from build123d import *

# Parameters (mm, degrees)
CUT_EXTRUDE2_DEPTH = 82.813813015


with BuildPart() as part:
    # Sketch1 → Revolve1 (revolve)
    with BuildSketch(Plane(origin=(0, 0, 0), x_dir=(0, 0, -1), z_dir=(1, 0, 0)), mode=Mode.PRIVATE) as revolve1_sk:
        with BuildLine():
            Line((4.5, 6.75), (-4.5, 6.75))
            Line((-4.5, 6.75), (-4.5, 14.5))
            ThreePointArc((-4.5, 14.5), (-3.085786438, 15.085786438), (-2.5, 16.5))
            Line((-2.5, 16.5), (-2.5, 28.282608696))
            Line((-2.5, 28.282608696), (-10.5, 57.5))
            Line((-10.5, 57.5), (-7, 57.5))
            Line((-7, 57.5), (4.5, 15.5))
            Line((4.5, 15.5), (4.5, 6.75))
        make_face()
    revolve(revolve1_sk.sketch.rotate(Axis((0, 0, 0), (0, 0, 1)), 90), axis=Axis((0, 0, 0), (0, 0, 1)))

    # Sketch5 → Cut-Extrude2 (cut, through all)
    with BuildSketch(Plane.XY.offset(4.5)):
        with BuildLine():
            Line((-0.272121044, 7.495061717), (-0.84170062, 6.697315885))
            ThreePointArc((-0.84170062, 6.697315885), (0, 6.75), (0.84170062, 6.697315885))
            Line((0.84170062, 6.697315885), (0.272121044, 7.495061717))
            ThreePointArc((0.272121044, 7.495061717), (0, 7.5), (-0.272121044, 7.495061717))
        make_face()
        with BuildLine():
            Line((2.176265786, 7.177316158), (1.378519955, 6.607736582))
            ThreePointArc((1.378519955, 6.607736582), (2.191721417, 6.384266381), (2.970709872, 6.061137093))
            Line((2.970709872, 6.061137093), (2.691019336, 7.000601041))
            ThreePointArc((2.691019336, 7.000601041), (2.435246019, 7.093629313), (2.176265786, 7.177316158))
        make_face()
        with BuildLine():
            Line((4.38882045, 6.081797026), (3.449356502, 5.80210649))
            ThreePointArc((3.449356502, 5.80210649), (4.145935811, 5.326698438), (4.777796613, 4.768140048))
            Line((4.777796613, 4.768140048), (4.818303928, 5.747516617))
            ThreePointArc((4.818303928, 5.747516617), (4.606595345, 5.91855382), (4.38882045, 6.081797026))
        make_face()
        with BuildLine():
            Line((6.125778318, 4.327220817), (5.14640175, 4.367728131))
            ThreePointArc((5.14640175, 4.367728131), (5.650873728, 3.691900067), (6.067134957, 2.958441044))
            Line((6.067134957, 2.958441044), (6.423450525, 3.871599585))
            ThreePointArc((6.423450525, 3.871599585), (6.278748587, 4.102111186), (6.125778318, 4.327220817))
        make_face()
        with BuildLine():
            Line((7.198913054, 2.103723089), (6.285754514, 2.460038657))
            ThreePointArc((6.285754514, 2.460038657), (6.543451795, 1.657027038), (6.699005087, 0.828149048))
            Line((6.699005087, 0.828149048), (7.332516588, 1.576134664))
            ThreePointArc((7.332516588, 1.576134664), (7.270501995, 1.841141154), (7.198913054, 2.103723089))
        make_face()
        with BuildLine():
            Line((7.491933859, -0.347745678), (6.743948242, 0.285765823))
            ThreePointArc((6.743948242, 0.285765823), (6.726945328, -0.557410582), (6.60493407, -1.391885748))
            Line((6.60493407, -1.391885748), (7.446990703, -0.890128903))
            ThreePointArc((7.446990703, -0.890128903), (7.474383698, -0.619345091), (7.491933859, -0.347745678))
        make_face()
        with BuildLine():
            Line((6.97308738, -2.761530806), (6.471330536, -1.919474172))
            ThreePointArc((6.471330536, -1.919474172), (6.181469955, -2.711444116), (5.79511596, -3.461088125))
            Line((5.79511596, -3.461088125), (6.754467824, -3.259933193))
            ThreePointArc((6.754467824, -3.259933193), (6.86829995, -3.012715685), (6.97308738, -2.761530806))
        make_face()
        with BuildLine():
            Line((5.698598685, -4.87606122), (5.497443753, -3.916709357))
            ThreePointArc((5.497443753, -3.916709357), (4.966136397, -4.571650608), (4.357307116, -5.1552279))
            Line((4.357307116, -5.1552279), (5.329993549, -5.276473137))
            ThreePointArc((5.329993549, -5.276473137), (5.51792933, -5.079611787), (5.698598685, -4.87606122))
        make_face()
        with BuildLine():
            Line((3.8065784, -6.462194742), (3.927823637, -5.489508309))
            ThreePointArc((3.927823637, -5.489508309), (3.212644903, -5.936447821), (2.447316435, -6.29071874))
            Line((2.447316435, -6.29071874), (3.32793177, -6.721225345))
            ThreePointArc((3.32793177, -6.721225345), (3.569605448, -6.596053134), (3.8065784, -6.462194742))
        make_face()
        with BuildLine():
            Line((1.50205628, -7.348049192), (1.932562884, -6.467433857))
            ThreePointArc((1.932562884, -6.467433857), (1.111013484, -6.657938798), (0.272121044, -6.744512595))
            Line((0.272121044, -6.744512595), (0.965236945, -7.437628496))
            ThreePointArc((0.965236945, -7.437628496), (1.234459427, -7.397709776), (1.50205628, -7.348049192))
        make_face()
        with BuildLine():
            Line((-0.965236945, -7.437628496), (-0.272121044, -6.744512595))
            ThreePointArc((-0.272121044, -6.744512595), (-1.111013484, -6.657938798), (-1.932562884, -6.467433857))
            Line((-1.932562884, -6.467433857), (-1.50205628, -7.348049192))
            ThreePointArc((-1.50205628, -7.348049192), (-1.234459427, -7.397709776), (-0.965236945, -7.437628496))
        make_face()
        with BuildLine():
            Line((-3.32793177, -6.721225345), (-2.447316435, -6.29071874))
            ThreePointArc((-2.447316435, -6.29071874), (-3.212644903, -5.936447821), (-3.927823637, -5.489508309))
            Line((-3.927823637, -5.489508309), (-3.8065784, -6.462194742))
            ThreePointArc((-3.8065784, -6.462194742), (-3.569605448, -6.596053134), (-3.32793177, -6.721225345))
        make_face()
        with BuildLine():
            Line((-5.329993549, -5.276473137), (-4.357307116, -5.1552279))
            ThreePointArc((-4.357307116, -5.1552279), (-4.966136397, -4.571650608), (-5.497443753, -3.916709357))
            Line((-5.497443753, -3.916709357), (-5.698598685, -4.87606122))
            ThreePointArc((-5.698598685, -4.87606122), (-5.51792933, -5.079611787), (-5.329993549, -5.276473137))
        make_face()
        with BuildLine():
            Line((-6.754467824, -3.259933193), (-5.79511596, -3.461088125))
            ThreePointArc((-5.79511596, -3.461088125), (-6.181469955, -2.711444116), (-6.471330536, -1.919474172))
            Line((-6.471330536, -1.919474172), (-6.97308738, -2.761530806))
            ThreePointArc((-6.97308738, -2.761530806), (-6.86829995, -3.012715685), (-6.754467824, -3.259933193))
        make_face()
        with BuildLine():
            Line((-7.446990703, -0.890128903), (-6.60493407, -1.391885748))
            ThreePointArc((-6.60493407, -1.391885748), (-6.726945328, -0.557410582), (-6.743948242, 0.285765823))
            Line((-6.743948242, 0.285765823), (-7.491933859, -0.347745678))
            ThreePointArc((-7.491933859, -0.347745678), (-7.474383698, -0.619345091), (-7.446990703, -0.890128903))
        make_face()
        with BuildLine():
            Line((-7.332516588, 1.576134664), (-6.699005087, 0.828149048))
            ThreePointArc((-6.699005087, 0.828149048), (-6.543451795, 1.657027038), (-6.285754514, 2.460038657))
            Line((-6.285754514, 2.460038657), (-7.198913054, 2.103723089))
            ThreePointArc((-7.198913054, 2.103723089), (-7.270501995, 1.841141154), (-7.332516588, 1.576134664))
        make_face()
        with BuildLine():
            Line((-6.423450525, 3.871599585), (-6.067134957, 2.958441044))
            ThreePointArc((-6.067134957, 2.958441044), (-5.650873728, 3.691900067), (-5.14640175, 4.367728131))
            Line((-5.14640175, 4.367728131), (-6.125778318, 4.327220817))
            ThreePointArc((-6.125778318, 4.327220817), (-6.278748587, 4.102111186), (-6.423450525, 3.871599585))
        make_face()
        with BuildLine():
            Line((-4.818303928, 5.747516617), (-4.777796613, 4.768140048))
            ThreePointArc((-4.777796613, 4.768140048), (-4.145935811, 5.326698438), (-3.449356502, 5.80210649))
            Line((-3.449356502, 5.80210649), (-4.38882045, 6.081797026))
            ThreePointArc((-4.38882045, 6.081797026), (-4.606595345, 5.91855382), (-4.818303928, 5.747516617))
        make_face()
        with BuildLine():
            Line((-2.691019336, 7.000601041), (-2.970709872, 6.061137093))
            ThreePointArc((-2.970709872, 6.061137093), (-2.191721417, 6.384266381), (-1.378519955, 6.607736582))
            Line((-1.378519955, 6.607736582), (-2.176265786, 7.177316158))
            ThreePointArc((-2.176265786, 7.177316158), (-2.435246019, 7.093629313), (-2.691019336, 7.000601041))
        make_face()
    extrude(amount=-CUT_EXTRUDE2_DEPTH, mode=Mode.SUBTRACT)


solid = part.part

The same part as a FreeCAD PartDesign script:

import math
import FreeCAD as App
import Part
import Sketcher
Q = App.Units.Quantity

doc = App.newDocument("Part")
body = doc.addObject("PartDesign::Body", "Body")

# Sketch on YZ plane
sketch1 = body.newObject("Sketcher::SketchObject", "Sketch")
sketch1.AttachmentSupport = (doc.getObject("YZ_Plane"), [""])
sketch1.MapMode = "FlatFace"
sketch1.addGeometry([
    Part.LineSegment(App.Vector(6.75, 4.5, 0), App.Vector(6.75, -4.5, 0)),  # 0
    Part.LineSegment(App.Vector(6.75, -4.5, 0), App.Vector(15.5, -4.5, 0)),  # 1
    Part.LineSegment(App.Vector(15.5, -4.5, 0), App.Vector(57.5, 7, 0)),  # 2
    Part.LineSegment(App.Vector(57.5, 7, 0), App.Vector(57.5, 10.5, 0)),  # 3
    Part.LineSegment(App.Vector(57.5, 10.5, 0), App.Vector(28.282609, 2.5, 0)),  # 4
    Part.LineSegment(App.Vector(28.282609, 2.5, 0), App.Vector(16.5, 2.5, 0)),  # 5
    Part.ArcOfCircle(Part.Circle(App.Vector(16.5, 4.5, 0), App.Vector(0, 0, 1), 2), math.radians(-180), math.radians(-90)),  # 6
    Part.LineSegment(App.Vector(14.5, 4.5, 0), App.Vector(6.75, 4.5, 0)),  # 7
], False)
sketch1.addConstraint([
    Sketcher.Constraint("Coincident", 0, 2, 1, 1),
    Sketcher.Constraint("Coincident", 1, 2, 2, 1),
    Sketcher.Constraint("Coincident", 2, 2, 3, 1),
    Sketcher.Constraint("Coincident", 3, 2, 4, 1),
    Sketcher.Constraint("Coincident", 4, 2, 5, 1),
    Sketcher.Constraint("Tangent", 5, 2, 6, 2),
    Sketcher.Constraint("Coincident", 6, 1, 7, 1),
    Sketcher.Constraint("Coincident", 7, 2, 0, 1),
    Sketcher.Constraint("Vertical", 0),
    Sketcher.Constraint("Horizontal", 1),
    Sketcher.Constraint("Vertical", 3),
    Sketcher.Constraint("Horizontal", 5),
    Sketcher.Constraint("Horizontal", 7),
    Sketcher.Constraint("Parallel", 2, 4),
    Sketcher.Constraint("Radius", 6, Q("2 mm")),
    Sketcher.Constraint("DistanceY", 0, 2, 0, 1, Q("9 mm")),
    Sketcher.Constraint("DistanceY", 3, 1, 3, 2, Q("3.5 mm")),
    Sketcher.Constraint("DistanceY", -1, 1, 2, 2, Q("7 mm")),
    Sketcher.Constraint("DistanceY", 0, 2, 6, 3, Q("9 mm")),
    Sketcher.Constraint("DistanceX", 1, 2, 6, 3, Q("1 mm")),
    Sketcher.Constraint("DistanceX", 6, 3, 2, 2, Q("41 mm")),
    Sketcher.Constraint("DistanceY", 6, 3, 3, 2, Q("6 mm")),
    Sketcher.Constraint("DistanceX", 1, 1, 1, 2, Q("8.75 mm")),
    Sketcher.Constraint("DistanceX", -1, 1, 6, 3, Q("16.5 mm")),
])
revolution = body.newObject("PartDesign::Revolution", "Revolution")
revolution.Profile = sketch1
revolution.ReferenceAxis = (sketch1, ["V_Axis"])
revolution.Angle = 360

# Sketch on XY plane
sketch2 = body.newObject("Sketcher::SketchObject", "Sketch001")
sketch2.AttachmentSupport = (doc.getObject("XY_Plane"), [""])
sketch2.MapMode = "FlatFace"
sketch2.AttachmentOffset = App.Placement(App.Vector(0, 0, 4.5), App.Rotation())
sketch2.addGeometry([
    Part.LineSegment(App.Vector(-0.272121, 7.495062, 0), App.Vector(-0.841701, 6.697316, 0)),  # 0
    Part.ArcOfCircle(Part.Circle(App.Vector(0, 0, 0), App.Vector(0, 0, 1), 6.75), math.radians(82.836777), math.radians(97.163223)),  # 1
    Part.LineSegment(App.Vector(0.841701, 6.697316, 0), App.Vector(0.272121, 7.495062, 0)),  # 2
    Part.ArcOfCircle(Part.Circle(App.Vector(0, 0, 0), App.Vector(0, 0, 1), 7.5), math.radians(87.920692), math.radians(92.079308)),  # 3
    Part.LineSegment(App.Vector(2.176266, 7.177316, 0), App.Vector(1.37852, 6.607737, 0)),  # 4
    Part.ArcOfCircle(Part.Circle(App.Vector(0, 0, 0), App.Vector(0, 0, 1), 6.75), math.radians(63.889409), math.radians(78.215854)),  # 5
    Part.LineSegment(App.Vector(2.97071, 6.061137, 0), App.Vector(2.691019, 7.000601, 0)),  # 6
    Part.ArcOfCircle(Part.Circle(App.Vector(0, 0, 0), App.Vector(0, 0, 1), 7.5), math.radians(68.973324), math.radians(73.13194)),  # 7
    Part.LineSegment(App.Vector(4.38882, 6.081797, 0), App.Vector(3.449357, 5.802106, 0)),  # 8
    Part.ArcOfCircle(Part.Circle(App.Vector(0, 0, 0), App.Vector(0, 0, 1), 6.75), math.radians(44.94204), math.radians(59.268486)),  # 9
    Part.LineSegment(App.Vector(4.777797, 4.76814, 0), App.Vector(4.818304, 5.747517, 0)),  # 10
    Part.ArcOfCircle(Part.Circle(App.Vector(-0.000001, -0.000001, 0), App.Vector(0, 0, 1), 7.500001), math.radians(50.025955), math.radians(54.184571)),  # 11
    Part.LineSegment(App.Vector(6.125778, 4.327221, 0), App.Vector(5.146402, 4.367728, 0)),  # 12
    Part.ArcOfCircle(Part.Circle(App.Vector(0, 0, 0), App.Vector(0, 0, 1), 6.75), math.radians(25.994672), math.radians(40.321118)),  # 13
    Part.LineSegment(App.Vector(6.067135, 2.958441, 0), App.Vector(6.423451, 3.8716, 0)),  # 14
    Part.ArcOfCircle(Part.Circle(App.Vector(0, 0, 0), App.Vector(0, 0, 1), 7.5), math.radians(31.078587), math.radians(35.237203)),  # 15
    Part.LineSegment(App.Vector(7.198913, 2.103723, 0), App.Vector(6.285755, 2.460039, 0)),  # 16
    Part.ArcOfCircle(Part.Circle(App.Vector(0, 0, 0), App.Vector(0, 0, 1), 6.75), math.radians(7.047303), math.radians(21.373749)),  # 17
    Part.LineSegment(App.Vector(6.699005, 0.828149, 0), App.Vector(7.332517, 1.576135, 0)),  # 18
    Part.ArcOfCircle(Part.Circle(App.Vector(0.000001, 0, 0), App.Vector(0, 0, 1), 7.499998), math.radians(12.131218), math.radians(16.289835)),  # 19
    Part.LineSegment(App.Vector(7.491934, -0.347746, 0), App.Vector(6.743948, 0.285766, 0)),  # 20
    Part.ArcOfCircle(Part.Circle(App.Vector(0, 0, 0), App.Vector(0, 0, 1), 6.75), math.radians(-11.900065), math.radians(2.426381)),  # 21
    Part.LineSegment(App.Vector(6.604934, -1.391886, 0), App.Vector(7.446991, -0.890129, 0)),  # 22
    Part.ArcOfCircle(Part.Circle(App.Vector(0.000001, 0, 0), App.Vector(0, 0, 1), 7.499999), math.radians(-6.81615), math.radians(-2.657534)),  # 23
    Part.LineSegment(App.Vector(6.973087, -2.761531, 0), App.Vector(6.471331, -1.919474, 0)),  # 24
    Part.ArcOfCircle(Part.Circle(App.Vector(0, 0, 0), App.Vector(0, 0, 1), 6.75), math.radians(-30.847433), math.radians(-16.520988)),  # 25
    Part.LineSegment(App.Vector(5.795116, -3.461088, 0), App.Vector(6.754468, -3.259933, 0)),  # 26
    Part.ArcOfCircle(Part.Circle(App.Vector(0, 0, 0), App.Vector(0, 0, 1), 7.5), math.radians(-25.763518), math.radians(-21.604903)),  # 27
    Part.LineSegment(App.Vector(5.698599, -4.876061, 0), App.Vector(5.497444, -3.916709, 0)),  # 28
    Part.ArcOfCircle(Part.Circle(App.Vector(0, 0, 0), App.Vector(0, 0, 1), 6.75), math.radians(-49.794802), math.radians(-35.468356)),  # 29
    Part.LineSegment(App.Vector(4.357307, -5.155228, 0), App.Vector(5.329994, -5.276473, 0)),  # 30
    Part.ArcOfCircle(Part.Circle(App.Vector(0, 0, 0), App.Vector(0, 0, 1), 7.5), math.radians(-44.710887), math.radians(-40.552271)),  # 31
    Part.LineSegment(App.Vector(3.806578, -6.462195, 0), App.Vector(3.927824, -5.489508, 0)),  # 32
    Part.ArcOfCircle(Part.Circle(App.Vector(0, 0, 0), App.Vector(0, 0, 1), 6.75), math.radians(-68.74217), math.radians(-54.415724)),  # 33
    Part.LineSegment(App.Vector(2.447316, -6.290719, 0), App.Vector(3.327932, -6.721225, 0)),  # 34
    Part.ArcOfCircle(Part.Circle(App.Vector(0, 0, 0), App.Vector(0, 0, 1), 7.5), math.radians(-63.658255), math.radians(-59.499639)),  # 35
    Part.LineSegment(App.Vector(1.502056, -7.348049, 0), App.Vector(1.932563, -6.467434, 0)),  # 36
    Part.ArcOfCircle(Part.Circle(App.Vector(0, 0, 0), App.Vector(0, 0, 1), 6.75), math.radians(-87.689539), math.radians(-73.363093)),  # 37
    Part.LineSegment(App.Vector(0.272121, -6.744513, 0), App.Vector(0.965237, -7.437628, 0)),  # 38
    Part.ArcOfCircle(Part.Circle(App.Vector(0, -0.000001, 0), App.Vector(0, 0, 1), 7.499999), math.radians(-82.605624), math.radians(-78.447008)),  # 39
    Part.LineSegment(App.Vector(-0.965237, -7.437628, 0), App.Vector(-0.272121, -6.744513, 0)),  # 40
    Part.ArcOfCircle(Part.Circle(App.Vector(0, 0, 0), App.Vector(0, 0, 1), 6.75), math.radians(-106.636907), math.radians(-92.310461)),  # 41
    Part.LineSegment(App.Vector(-1.932563, -6.467434, 0), App.Vector(-1.502056, -7.348049, 0)),  # 42
    Part.ArcOfCircle(Part.Circle(App.Vector(0, -0.000001, 0), App.Vector(0, 0, 1), 7.499999), math.radians(-101.552992), math.radians(-97.394376)),  # 43
    Part.LineSegment(App.Vector(-3.327932, -6.721225, 0), App.Vector(-2.447316, -6.290719, 0)),  # 44
    Part.ArcOfCircle(Part.Circle(App.Vector(0, 0, 0), App.Vector(0, 0, 1), 6.75), math.radians(-125.584276), math.radians(-111.25783)),  # 45
    Part.LineSegment(App.Vector(-3.927824, -5.489508, 0), App.Vector(-3.806578, -6.462195, 0)),  # 46
    Part.ArcOfCircle(Part.Circle(App.Vector(0, 0, 0), App.Vector(0, 0, 1), 7.5), math.radians(-120.500361), math.radians(-116.341745)),  # 47
    Part.LineSegment(App.Vector(-5.329994, -5.276473, 0), App.Vector(-4.357307, -5.155228, 0)),  # 48
    Part.ArcOfCircle(Part.Circle(App.Vector(0, 0, 0), App.Vector(0, 0, 1), 6.75), math.radians(-144.531644), math.radians(-130.205198)),  # 49
    Part.LineSegment(App.Vector(-5.497444, -3.916709, 0), App.Vector(-5.698599, -4.876061, 0)),  # 50
    Part.ArcOfCircle(Part.Circle(App.Vector(0, 0, 0), App.Vector(0, 0, 1), 7.5), math.radians(-139.447729), math.radians(-135.289113)),  # 51
    Part.LineSegment(App.Vector(-6.754468, -3.259933, 0), App.Vector(-5.795116, -3.461088, 0)),  # 52
    Part.ArcOfCircle(Part.Circle(App.Vector(0, 0, 0), App.Vector(0, 0, 1), 6.75), math.radians(-163.479012), math.radians(-149.152567)),  # 53
    Part.LineSegment(App.Vector(-6.471331, -1.919474, 0), App.Vector(-6.973087, -2.761531, 0)),  # 54
    Part.ArcOfCircle(Part.Circle(App.Vector(0, 0, 0), App.Vector(0, 0, 1), 7.5), math.radians(-158.395097), math.radians(-154.236482)),  # 55
    Part.LineSegment(App.Vector(-7.446991, -0.890129, 0), App.Vector(-6.604934, -1.391886, 0)),  # 56
    Part.ArcOfCircle(Part.Circle(App.Vector(0, 0, 0), App.Vector(0, 0, 1), 6.75), math.radians(177.573619), math.radians(191.900065)),  # 57
    Part.LineSegment(App.Vector(-6.743948, 0.285766, 0), App.Vector(-7.491934, -0.347746, 0)),  # 58
    Part.ArcOfCircle(Part.Circle(App.Vector(-0.000001, 0, 0), App.Vector(0, 0, 1), 7.499999), math.radians(-177.342466), math.radians(-173.18385)),  # 59
    Part.LineSegment(App.Vector(-7.332517, 1.576135, 0), App.Vector(-6.699005, 0.828149, 0)),  # 60
    Part.ArcOfCircle(Part.Circle(App.Vector(0, 0, 0), App.Vector(0, 0, 1), 6.75), math.radians(158.626251), math.radians(172.952697)),  # 61
    Part.LineSegment(App.Vector(-6.285755, 2.460039, 0), App.Vector(-7.198913, 2.103723, 0)),  # 62
    Part.ArcOfCircle(Part.Circle(App.Vector(-0.000001, 0, 0), App.Vector(0, 0, 1), 7.499998), math.radians(163.710165), math.radians(167.868782)),  # 63
    Part.LineSegment(App.Vector(-6.423451, 3.8716, 0), App.Vector(-6.067135, 2.958441, 0)),  # 64
    Part.ArcOfCircle(Part.Circle(App.Vector(0, 0, 0), App.Vector(0, 0, 1), 6.75), math.radians(139.678882), math.radians(154.005328)),  # 65
    Part.LineSegment(App.Vector(-5.146402, 4.367728, 0), App.Vector(-6.125778, 4.327221, 0)),  # 66
    Part.ArcOfCircle(Part.Circle(App.Vector(0, 0, 0), App.Vector(0, 0, 1), 7.5), math.radians(144.762797), math.radians(148.921413)),  # 67
    Part.LineSegment(App.Vector(-4.818304, 5.747517, 0), App.Vector(-4.777797, 4.76814, 0)),  # 68
    Part.ArcOfCircle(Part.Circle(App.Vector(0, 0, 0), App.Vector(0, 0, 1), 6.75), math.radians(120.731514), math.radians(135.05796)),  # 69
    Part.LineSegment(App.Vector(-3.449357, 5.802106, 0), App.Vector(-4.38882, 6.081797, 0)),  # 70
    Part.ArcOfCircle(Part.Circle(App.Vector(0.000001, -0.000001, 0), App.Vector(0, 0, 1), 7.500001), math.radians(125.815429), math.radians(129.974045)),  # 71
    Part.LineSegment(App.Vector(-2.691019, 7.000601, 0), App.Vector(-2.97071, 6.061137, 0)),  # 72
    Part.ArcOfCircle(Part.Circle(App.Vector(0, 0, 0), App.Vector(0, 0, 1), 6.75), math.radians(101.784146), math.radians(116.110591)),  # 73
    Part.LineSegment(App.Vector(-1.37852, 6.607737, 0), App.Vector(-2.176266, 7.177316, 0)),  # 74
    Part.ArcOfCircle(Part.Circle(App.Vector(0, 0, 0), App.Vector(0, 0, 1), 7.5), math.radians(106.86806), math.radians(111.026676)),  # 75
], False)
sketch2.addConstraint([
    Sketcher.Constraint("Coincident", 0, 2, 1, 2),
    Sketcher.Constraint("Coincident", 1, 1, 2, 1),
    Sketcher.Constraint("Coincident", 2, 2, 3, 1),
    Sketcher.Constraint("Coincident", 3, 2, 0, 1),
    Sketcher.Constraint("Coincident", 4, 2, 5, 2),
    Sketcher.Constraint("Coincident", 5, 1, 6, 1),
    Sketcher.Constraint("Coincident", 6, 2, 7, 1),
    Sketcher.Constraint("Coincident", 7, 2, 4, 1),
    Sketcher.Constraint("Coincident", 8, 2, 9, 2),
    Sketcher.Constraint("Coincident", 9, 1, 10, 1),
    Sketcher.Constraint("Coincident", 10, 2, 11, 1),
    Sketcher.Constraint("Coincident", 11, 2, 8, 1),
    Sketcher.Constraint("Coincident", 12, 2, 13, 2),
    Sketcher.Constraint("Coincident", 13, 1, 14, 1),
    Sketcher.Constraint("Coincident", 14, 2, 15, 1),
    Sketcher.Constraint("Coincident", 15, 2, 12, 1),
    Sketcher.Constraint("Coincident", 16, 2, 17, 2),
    Sketcher.Constraint("Coincident", 17, 1, 18, 1),
    Sketcher.Constraint("Coincident", 18, 2, 19, 1),
    Sketcher.Constraint("Coincident", 19, 2, 16, 1),
    Sketcher.Constraint("Coincident", 20, 2, 21, 2),
    Sketcher.Constraint("Coincident", 21, 1, 22, 1),
    Sketcher.Constraint("Coincident", 22, 2, 23, 1),
    Sketcher.Constraint("Coincident", 23, 2, 20, 1),
    Sketcher.Constraint("Coincident", 24, 2, 25, 2),
    Sketcher.Constraint("Coincident", 25, 1, 26, 1),
    Sketcher.Constraint("Coincident", 26, 2, 27, 1),
    Sketcher.Constraint("Coincident", 27, 2, 24, 1),
    Sketcher.Constraint("Coincident", 28, 2, 29, 2),
    Sketcher.Constraint("Coincident", 29, 1, 30, 1),
    Sketcher.Constraint("Coincident", 30, 2, 31, 1),
    Sketcher.Constraint("Coincident", 31, 2, 28, 1),
    Sketcher.Constraint("Coincident", 32, 2, 33, 2),
    Sketcher.Constraint("Coincident", 33, 1, 34, 1),
    Sketcher.Constraint("Coincident", 34, 2, 35, 1),
    Sketcher.Constraint("Coincident", 35, 2, 32, 1),
    Sketcher.Constraint("Coincident", 36, 2, 37, 2),
    Sketcher.Constraint("Coincident", 37, 1, 38, 1),
    Sketcher.Constraint("Coincident", 38, 2, 39, 1),
    Sketcher.Constraint("Coincident", 39, 2, 36, 1),
    Sketcher.Constraint("Coincident", 40, 2, 41, 2),
    Sketcher.Constraint("Coincident", 41, 1, 42, 1),
    Sketcher.Constraint("Coincident", 42, 2, 43, 1),
    Sketcher.Constraint("Coincident", 43, 2, 40, 1),
    Sketcher.Constraint("Coincident", 44, 2, 45, 2),
    Sketcher.Constraint("Coincident", 45, 1, 46, 1),
    Sketcher.Constraint("Coincident", 46, 2, 47, 1),
    Sketcher.Constraint("Coincident", 47, 2, 44, 1),
    Sketcher.Constraint("Coincident", 48, 2, 49, 2),
    Sketcher.Constraint("Coincident", 49, 1, 50, 1),
    Sketcher.Constraint("Coincident", 50, 2, 51, 1),
    Sketcher.Constraint("Coincident", 51, 2, 48, 1),
    Sketcher.Constraint("Coincident", 52, 2, 53, 2),
    Sketcher.Constraint("Coincident", 53, 1, 54, 1),
    Sketcher.Constraint("Coincident", 54, 2, 55, 1),
    Sketcher.Constraint("Coincident", 55, 2, 52, 1),
    Sketcher.Constraint("Coincident", 56, 2, 57, 2),
    Sketcher.Constraint("Coincident", 57, 1, 58, 1),
    Sketcher.Constraint("Coincident", 58, 2, 59, 1),
    Sketcher.Constraint("Coincident", 59, 2, 56, 1),
    Sketcher.Constraint("Coincident", 60, 2, 61, 2),
    Sketcher.Constraint("Coincident", 61, 1, 62, 1),
    Sketcher.Constraint("Coincident", 62, 2, 63, 1),
    Sketcher.Constraint("Coincident", 63, 2, 60, 1),
    Sketcher.Constraint("Coincident", 64, 2, 65, 2),
    Sketcher.Constraint("Coincident", 65, 1, 66, 1),
    Sketcher.Constraint("Coincident", 66, 2, 67, 1),
    Sketcher.Constraint("Coincident", 67, 2, 64, 1),
    Sketcher.Constraint("Coincident", 68, 2, 69, 2),
    Sketcher.Constraint("Coincident", 69, 1, 70, 1),
    Sketcher.Constraint("Coincident", 70, 2, 71, 1),
    Sketcher.Constraint("Coincident", 71, 2, 68, 1),
    Sketcher.Constraint("Coincident", 72, 2, 73, 2),
    Sketcher.Constraint("Coincident", 73, 1, 74, 1),
    Sketcher.Constraint("Coincident", 74, 2, 75, 1),
    Sketcher.Constraint("Coincident", 75, 2, 72, 1),
    Sketcher.Constraint("Coincident", 1, 3, -1, 1),
    Sketcher.Constraint("Coincident", 3, 3, -1, 1),
    Sketcher.Constraint("Coincident", 5, 3, -1, 1),
    Sketcher.Constraint("Coincident", 7, 3, -1, 1),
    Sketcher.Constraint("Coincident", 9, 3, -1, 1),
    Sketcher.Constraint("Coincident", 11, 3, -1, 1),
    Sketcher.Constraint("Coincident", 13, 3, -1, 1),
    Sketcher.Constraint("Coincident", 15, 3, -1, 1),
    Sketcher.Constraint("Coincident", 17, 3, -1, 1),
    Sketcher.Constraint("Coincident", 19, 3, -1, 1),
    Sketcher.Constraint("Coincident", 21, 3, -1, 1),
    Sketcher.Constraint("Coincident", 23, 3, -1, 1),
    Sketcher.Constraint("Coincident", 25, 3, -1, 1),
    Sketcher.Constraint("Coincident", 27, 3, -1, 1),
    Sketcher.Constraint("Coincident", 29, 3, -1, 1),
    Sketcher.Constraint("Coincident", 31, 3, -1, 1),
    Sketcher.Constraint("Coincident", 33, 3, -1, 1),
    Sketcher.Constraint("Coincident", 35, 3, -1, 1),
    Sketcher.Constraint("Coincident", 37, 3, -1, 1),
    Sketcher.Constraint("Coincident", 39, 3, -1, 1),
    Sketcher.Constraint("Coincident", 41, 3, -1, 1),
    Sketcher.Constraint("Coincident", 43, 3, -1, 1),
    Sketcher.Constraint("Coincident", 45, 3, -1, 1),
    Sketcher.Constraint("Coincident", 47, 3, -1, 1),
    Sketcher.Constraint("Coincident", 49, 3, -1, 1),
    Sketcher.Constraint("Coincident", 51, 3, -1, 1),
    Sketcher.Constraint("Coincident", 53, 3, -1, 1),
    Sketcher.Constraint("Coincident", 55, 3, -1, 1),
    Sketcher.Constraint("Coincident", 57, 3, -1, 1),
    Sketcher.Constraint("Coincident", 59, 3, -1, 1),
    Sketcher.Constraint("Coincident", 61, 3, -1, 1),
    Sketcher.Constraint("Coincident", 63, 3, -1, 1),
    Sketcher.Constraint("Coincident", 65, 3, -1, 1),
    Sketcher.Constraint("Coincident", 67, 3, -1, 1),
    Sketcher.Constraint("Coincident", 69, 3, -1, 1),
    Sketcher.Constraint("Coincident", 71, 3, -1, 1),
    Sketcher.Constraint("Coincident", 73, 3, -1, 1),
    Sketcher.Constraint("Coincident", 75, 3, -1, 1),
    Sketcher.Constraint("Equal", 1, 5),
    Sketcher.Constraint("Equal", 3, 7),
    Sketcher.Constraint("Equal", 5, 9),
    Sketcher.Constraint("Equal", 7, 11),
    Sketcher.Constraint("Equal", 9, 13),
    Sketcher.Constraint("Equal", 11, 15),
    Sketcher.Constraint("Equal", 13, 17),
    Sketcher.Constraint("Equal", 15, 19),
    Sketcher.Constraint("Equal", 17, 21),
    Sketcher.Constraint("Equal", 19, 23),
    Sketcher.Constraint("Equal", 21, 25),
    Sketcher.Constraint("Equal", 23, 27),
    Sketcher.Constraint("Equal", 25, 29),
    Sketcher.Constraint("Equal", 27, 31),
    Sketcher.Constraint("Equal", 29, 33),
    Sketcher.Constraint("Equal", 31, 35),
    Sketcher.Constraint("Equal", 33, 37),
    Sketcher.Constraint("Equal", 35, 39),
    Sketcher.Constraint("Equal", 37, 41),
    Sketcher.Constraint("Equal", 39, 43),
    Sketcher.Constraint("Equal", 41, 45),
    Sketcher.Constraint("Equal", 43, 47),
    Sketcher.Constraint("Equal", 45, 49),
    Sketcher.Constraint("Equal", 47, 51),
    Sketcher.Constraint("Equal", 49, 53),
    Sketcher.Constraint("Equal", 51, 55),
    Sketcher.Constraint("Equal", 53, 57),
    Sketcher.Constraint("Equal", 55, 59),
    Sketcher.Constraint("Equal", 57, 61),
    Sketcher.Constraint("Equal", 59, 63),
    Sketcher.Constraint("Equal", 61, 65),
    Sketcher.Constraint("Equal", 63, 67),
    Sketcher.Constraint("Equal", 65, 69),
    Sketcher.Constraint("Equal", 67, 71),
    Sketcher.Constraint("Equal", 69, 73),
    Sketcher.Constraint("Equal", 71, 75),
    Sketcher.Constraint("Perpendicular", 2, 4),
    Sketcher.Constraint("Perpendicular", 6, 8),
    Sketcher.Constraint("Perpendicular", 10, 12),
    Sketcher.Constraint("Perpendicular", 14, 16),
    Sketcher.Constraint("Perpendicular", 18, 20),
    Sketcher.Constraint("Perpendicular", 22, 24),
    Sketcher.Constraint("Perpendicular", 26, 28),
    Sketcher.Constraint("Perpendicular", 30, 32),
    Sketcher.Constraint("Perpendicular", 34, 36),
    Sketcher.Constraint("Perpendicular", 38, 40),
    Sketcher.Constraint("Perpendicular", 42, 44),
    Sketcher.Constraint("Perpendicular", 46, 48),
    Sketcher.Constraint("Perpendicular", 50, 52),
    Sketcher.Constraint("Perpendicular", 54, 56),
    Sketcher.Constraint("Perpendicular", 58, 60),
    Sketcher.Constraint("Perpendicular", 62, 64),
    Sketcher.Constraint("Perpendicular", 66, 68),
    Sketcher.Constraint("Perpendicular", 70, 72),
    Sketcher.Constraint("Perpendicular", 0, 74),
    Sketcher.Constraint("Horizontal", 0, 2, 1, 1),
    Sketcher.Constraint("Horizontal", 2, 2, 3, 2),
    Sketcher.Constraint("Horizontal", 37, 1, 40, 2),
    Sketcher.Constraint("Horizontal", 36, 2, 41, 1),
    Sketcher.Constraint("Horizontal", 39, 2, 42, 2),
    Sketcher.Constraint("Horizontal", 38, 2, 43, 2),
    Sketcher.Constraint("Horizontal", 33, 1, 44, 2),
    Sketcher.Constraint("Horizontal", 32, 2, 45, 1),
    Sketcher.Constraint("Horizontal", 35, 2, 46, 2),
    Sketcher.Constraint("Horizontal", 29, 1, 48, 2),
    Sketcher.Constraint("Horizontal", 28, 2, 49, 1),
    Sketcher.Constraint("Horizontal", 31, 2, 50, 2),
    Sketcher.Constraint("Horizontal", 25, 1, 52, 2),
    Sketcher.Constraint("Horizontal", 24, 2, 53, 1),
    Sketcher.Constraint("Horizontal", 27, 2, 54, 2),
    Sketcher.Constraint("Horizontal", 21, 1, 56, 2),
    Sketcher.Constraint("Horizontal", 20, 2, 57, 1),
    Sketcher.Constraint("Horizontal", 23, 2, 58, 2),
    Sketcher.Constraint("Horizontal", 17, 1, 60, 2),
    Sketcher.Constraint("Horizontal", 16, 2, 61, 1),
    Sketcher.Constraint("Horizontal", 19, 2, 62, 2),
    Sketcher.Constraint("Horizontal", 13, 1, 64, 2),
    Sketcher.Constraint("Horizontal", 12, 2, 65, 1),
    Sketcher.Constraint("Horizontal", 15, 2, 66, 2),
    Sketcher.Constraint("Horizontal", 9, 1, 68, 2),
    Sketcher.Constraint("Horizontal", 8, 2, 69, 1),
    Sketcher.Constraint("Horizontal", 11, 2, 70, 2),
    Sketcher.Constraint("Horizontal", 5, 1, 72, 2),
    Sketcher.Constraint("Horizontal", 4, 2, 73, 1),
    Sketcher.Constraint("Vertical", 2, 2, 37, 1),
    Sketcher.Constraint("Equal", 2, 4),
    Sketcher.Constraint("Equal", 4, 6),
    Sketcher.Constraint("Equal", 6, 8),
    Sketcher.Constraint("Equal", 8, 10),
    Sketcher.Constraint("Equal", 10, 12),
    Sketcher.Constraint("Equal", 12, 14),
    Sketcher.Constraint("Equal", 14, 16),
    Sketcher.Constraint("Equal", 16, 18),
    Sketcher.Constraint("Equal", 18, 20),
    Sketcher.Constraint("Equal", 20, 22),
    Sketcher.Constraint("Equal", 22, 24),
    Sketcher.Constraint("Equal", 24, 26),
    Sketcher.Constraint("Equal", 26, 28),
    Sketcher.Constraint("Equal", 28, 30),
    Sketcher.Constraint("Equal", 30, 32),
    Sketcher.Constraint("Equal", 32, 34),
    Sketcher.Constraint("Equal", 34, 36),
    Sketcher.Constraint("Equal", 36, 38),
    Sketcher.Constraint("Radius", 3, Q("7.5 mm")),
    Sketcher.Constraint("Radius", 1, Q("6.75 mm")),
    Sketcher.Constraint("DistanceX", 0, 2, -1, 1, Q("0.841701 mm")),
    Sketcher.Constraint("DistanceY", -1, 1, 6, 2, Q("7.000601 mm")),
    Sketcher.Constraint("DistanceX", -1, 1, 12, 2, Q("5.146402 mm")),
    Sketcher.Constraint("DistanceY", -1, 1, 14, 2, Q("3.8716 mm")),
    Sketcher.Constraint("DistanceX", -1, 1, 31, 2, Q("5.698599 mm")),
    Sketcher.Constraint("DistanceY", -1, 1, 17, 1, Q("0.828149 mm")),
    Sketcher.Constraint("DistanceX", -1, 1, 22, 2, Q("7.446991 mm")),
    Sketcher.Constraint("DistanceY", 32, 2, -1, 1, Q("5.489508 mm")),
    Sketcher.Constraint("DistanceY", 33, 1, -1, 1, Q("6.290719 mm")),
])
pocket1 = body.newObject("PartDesign::Pocket", "Pocket")
pocket1.Profile = sketch2
pocket1.Type = "ThroughAll"

doc.recompute()
